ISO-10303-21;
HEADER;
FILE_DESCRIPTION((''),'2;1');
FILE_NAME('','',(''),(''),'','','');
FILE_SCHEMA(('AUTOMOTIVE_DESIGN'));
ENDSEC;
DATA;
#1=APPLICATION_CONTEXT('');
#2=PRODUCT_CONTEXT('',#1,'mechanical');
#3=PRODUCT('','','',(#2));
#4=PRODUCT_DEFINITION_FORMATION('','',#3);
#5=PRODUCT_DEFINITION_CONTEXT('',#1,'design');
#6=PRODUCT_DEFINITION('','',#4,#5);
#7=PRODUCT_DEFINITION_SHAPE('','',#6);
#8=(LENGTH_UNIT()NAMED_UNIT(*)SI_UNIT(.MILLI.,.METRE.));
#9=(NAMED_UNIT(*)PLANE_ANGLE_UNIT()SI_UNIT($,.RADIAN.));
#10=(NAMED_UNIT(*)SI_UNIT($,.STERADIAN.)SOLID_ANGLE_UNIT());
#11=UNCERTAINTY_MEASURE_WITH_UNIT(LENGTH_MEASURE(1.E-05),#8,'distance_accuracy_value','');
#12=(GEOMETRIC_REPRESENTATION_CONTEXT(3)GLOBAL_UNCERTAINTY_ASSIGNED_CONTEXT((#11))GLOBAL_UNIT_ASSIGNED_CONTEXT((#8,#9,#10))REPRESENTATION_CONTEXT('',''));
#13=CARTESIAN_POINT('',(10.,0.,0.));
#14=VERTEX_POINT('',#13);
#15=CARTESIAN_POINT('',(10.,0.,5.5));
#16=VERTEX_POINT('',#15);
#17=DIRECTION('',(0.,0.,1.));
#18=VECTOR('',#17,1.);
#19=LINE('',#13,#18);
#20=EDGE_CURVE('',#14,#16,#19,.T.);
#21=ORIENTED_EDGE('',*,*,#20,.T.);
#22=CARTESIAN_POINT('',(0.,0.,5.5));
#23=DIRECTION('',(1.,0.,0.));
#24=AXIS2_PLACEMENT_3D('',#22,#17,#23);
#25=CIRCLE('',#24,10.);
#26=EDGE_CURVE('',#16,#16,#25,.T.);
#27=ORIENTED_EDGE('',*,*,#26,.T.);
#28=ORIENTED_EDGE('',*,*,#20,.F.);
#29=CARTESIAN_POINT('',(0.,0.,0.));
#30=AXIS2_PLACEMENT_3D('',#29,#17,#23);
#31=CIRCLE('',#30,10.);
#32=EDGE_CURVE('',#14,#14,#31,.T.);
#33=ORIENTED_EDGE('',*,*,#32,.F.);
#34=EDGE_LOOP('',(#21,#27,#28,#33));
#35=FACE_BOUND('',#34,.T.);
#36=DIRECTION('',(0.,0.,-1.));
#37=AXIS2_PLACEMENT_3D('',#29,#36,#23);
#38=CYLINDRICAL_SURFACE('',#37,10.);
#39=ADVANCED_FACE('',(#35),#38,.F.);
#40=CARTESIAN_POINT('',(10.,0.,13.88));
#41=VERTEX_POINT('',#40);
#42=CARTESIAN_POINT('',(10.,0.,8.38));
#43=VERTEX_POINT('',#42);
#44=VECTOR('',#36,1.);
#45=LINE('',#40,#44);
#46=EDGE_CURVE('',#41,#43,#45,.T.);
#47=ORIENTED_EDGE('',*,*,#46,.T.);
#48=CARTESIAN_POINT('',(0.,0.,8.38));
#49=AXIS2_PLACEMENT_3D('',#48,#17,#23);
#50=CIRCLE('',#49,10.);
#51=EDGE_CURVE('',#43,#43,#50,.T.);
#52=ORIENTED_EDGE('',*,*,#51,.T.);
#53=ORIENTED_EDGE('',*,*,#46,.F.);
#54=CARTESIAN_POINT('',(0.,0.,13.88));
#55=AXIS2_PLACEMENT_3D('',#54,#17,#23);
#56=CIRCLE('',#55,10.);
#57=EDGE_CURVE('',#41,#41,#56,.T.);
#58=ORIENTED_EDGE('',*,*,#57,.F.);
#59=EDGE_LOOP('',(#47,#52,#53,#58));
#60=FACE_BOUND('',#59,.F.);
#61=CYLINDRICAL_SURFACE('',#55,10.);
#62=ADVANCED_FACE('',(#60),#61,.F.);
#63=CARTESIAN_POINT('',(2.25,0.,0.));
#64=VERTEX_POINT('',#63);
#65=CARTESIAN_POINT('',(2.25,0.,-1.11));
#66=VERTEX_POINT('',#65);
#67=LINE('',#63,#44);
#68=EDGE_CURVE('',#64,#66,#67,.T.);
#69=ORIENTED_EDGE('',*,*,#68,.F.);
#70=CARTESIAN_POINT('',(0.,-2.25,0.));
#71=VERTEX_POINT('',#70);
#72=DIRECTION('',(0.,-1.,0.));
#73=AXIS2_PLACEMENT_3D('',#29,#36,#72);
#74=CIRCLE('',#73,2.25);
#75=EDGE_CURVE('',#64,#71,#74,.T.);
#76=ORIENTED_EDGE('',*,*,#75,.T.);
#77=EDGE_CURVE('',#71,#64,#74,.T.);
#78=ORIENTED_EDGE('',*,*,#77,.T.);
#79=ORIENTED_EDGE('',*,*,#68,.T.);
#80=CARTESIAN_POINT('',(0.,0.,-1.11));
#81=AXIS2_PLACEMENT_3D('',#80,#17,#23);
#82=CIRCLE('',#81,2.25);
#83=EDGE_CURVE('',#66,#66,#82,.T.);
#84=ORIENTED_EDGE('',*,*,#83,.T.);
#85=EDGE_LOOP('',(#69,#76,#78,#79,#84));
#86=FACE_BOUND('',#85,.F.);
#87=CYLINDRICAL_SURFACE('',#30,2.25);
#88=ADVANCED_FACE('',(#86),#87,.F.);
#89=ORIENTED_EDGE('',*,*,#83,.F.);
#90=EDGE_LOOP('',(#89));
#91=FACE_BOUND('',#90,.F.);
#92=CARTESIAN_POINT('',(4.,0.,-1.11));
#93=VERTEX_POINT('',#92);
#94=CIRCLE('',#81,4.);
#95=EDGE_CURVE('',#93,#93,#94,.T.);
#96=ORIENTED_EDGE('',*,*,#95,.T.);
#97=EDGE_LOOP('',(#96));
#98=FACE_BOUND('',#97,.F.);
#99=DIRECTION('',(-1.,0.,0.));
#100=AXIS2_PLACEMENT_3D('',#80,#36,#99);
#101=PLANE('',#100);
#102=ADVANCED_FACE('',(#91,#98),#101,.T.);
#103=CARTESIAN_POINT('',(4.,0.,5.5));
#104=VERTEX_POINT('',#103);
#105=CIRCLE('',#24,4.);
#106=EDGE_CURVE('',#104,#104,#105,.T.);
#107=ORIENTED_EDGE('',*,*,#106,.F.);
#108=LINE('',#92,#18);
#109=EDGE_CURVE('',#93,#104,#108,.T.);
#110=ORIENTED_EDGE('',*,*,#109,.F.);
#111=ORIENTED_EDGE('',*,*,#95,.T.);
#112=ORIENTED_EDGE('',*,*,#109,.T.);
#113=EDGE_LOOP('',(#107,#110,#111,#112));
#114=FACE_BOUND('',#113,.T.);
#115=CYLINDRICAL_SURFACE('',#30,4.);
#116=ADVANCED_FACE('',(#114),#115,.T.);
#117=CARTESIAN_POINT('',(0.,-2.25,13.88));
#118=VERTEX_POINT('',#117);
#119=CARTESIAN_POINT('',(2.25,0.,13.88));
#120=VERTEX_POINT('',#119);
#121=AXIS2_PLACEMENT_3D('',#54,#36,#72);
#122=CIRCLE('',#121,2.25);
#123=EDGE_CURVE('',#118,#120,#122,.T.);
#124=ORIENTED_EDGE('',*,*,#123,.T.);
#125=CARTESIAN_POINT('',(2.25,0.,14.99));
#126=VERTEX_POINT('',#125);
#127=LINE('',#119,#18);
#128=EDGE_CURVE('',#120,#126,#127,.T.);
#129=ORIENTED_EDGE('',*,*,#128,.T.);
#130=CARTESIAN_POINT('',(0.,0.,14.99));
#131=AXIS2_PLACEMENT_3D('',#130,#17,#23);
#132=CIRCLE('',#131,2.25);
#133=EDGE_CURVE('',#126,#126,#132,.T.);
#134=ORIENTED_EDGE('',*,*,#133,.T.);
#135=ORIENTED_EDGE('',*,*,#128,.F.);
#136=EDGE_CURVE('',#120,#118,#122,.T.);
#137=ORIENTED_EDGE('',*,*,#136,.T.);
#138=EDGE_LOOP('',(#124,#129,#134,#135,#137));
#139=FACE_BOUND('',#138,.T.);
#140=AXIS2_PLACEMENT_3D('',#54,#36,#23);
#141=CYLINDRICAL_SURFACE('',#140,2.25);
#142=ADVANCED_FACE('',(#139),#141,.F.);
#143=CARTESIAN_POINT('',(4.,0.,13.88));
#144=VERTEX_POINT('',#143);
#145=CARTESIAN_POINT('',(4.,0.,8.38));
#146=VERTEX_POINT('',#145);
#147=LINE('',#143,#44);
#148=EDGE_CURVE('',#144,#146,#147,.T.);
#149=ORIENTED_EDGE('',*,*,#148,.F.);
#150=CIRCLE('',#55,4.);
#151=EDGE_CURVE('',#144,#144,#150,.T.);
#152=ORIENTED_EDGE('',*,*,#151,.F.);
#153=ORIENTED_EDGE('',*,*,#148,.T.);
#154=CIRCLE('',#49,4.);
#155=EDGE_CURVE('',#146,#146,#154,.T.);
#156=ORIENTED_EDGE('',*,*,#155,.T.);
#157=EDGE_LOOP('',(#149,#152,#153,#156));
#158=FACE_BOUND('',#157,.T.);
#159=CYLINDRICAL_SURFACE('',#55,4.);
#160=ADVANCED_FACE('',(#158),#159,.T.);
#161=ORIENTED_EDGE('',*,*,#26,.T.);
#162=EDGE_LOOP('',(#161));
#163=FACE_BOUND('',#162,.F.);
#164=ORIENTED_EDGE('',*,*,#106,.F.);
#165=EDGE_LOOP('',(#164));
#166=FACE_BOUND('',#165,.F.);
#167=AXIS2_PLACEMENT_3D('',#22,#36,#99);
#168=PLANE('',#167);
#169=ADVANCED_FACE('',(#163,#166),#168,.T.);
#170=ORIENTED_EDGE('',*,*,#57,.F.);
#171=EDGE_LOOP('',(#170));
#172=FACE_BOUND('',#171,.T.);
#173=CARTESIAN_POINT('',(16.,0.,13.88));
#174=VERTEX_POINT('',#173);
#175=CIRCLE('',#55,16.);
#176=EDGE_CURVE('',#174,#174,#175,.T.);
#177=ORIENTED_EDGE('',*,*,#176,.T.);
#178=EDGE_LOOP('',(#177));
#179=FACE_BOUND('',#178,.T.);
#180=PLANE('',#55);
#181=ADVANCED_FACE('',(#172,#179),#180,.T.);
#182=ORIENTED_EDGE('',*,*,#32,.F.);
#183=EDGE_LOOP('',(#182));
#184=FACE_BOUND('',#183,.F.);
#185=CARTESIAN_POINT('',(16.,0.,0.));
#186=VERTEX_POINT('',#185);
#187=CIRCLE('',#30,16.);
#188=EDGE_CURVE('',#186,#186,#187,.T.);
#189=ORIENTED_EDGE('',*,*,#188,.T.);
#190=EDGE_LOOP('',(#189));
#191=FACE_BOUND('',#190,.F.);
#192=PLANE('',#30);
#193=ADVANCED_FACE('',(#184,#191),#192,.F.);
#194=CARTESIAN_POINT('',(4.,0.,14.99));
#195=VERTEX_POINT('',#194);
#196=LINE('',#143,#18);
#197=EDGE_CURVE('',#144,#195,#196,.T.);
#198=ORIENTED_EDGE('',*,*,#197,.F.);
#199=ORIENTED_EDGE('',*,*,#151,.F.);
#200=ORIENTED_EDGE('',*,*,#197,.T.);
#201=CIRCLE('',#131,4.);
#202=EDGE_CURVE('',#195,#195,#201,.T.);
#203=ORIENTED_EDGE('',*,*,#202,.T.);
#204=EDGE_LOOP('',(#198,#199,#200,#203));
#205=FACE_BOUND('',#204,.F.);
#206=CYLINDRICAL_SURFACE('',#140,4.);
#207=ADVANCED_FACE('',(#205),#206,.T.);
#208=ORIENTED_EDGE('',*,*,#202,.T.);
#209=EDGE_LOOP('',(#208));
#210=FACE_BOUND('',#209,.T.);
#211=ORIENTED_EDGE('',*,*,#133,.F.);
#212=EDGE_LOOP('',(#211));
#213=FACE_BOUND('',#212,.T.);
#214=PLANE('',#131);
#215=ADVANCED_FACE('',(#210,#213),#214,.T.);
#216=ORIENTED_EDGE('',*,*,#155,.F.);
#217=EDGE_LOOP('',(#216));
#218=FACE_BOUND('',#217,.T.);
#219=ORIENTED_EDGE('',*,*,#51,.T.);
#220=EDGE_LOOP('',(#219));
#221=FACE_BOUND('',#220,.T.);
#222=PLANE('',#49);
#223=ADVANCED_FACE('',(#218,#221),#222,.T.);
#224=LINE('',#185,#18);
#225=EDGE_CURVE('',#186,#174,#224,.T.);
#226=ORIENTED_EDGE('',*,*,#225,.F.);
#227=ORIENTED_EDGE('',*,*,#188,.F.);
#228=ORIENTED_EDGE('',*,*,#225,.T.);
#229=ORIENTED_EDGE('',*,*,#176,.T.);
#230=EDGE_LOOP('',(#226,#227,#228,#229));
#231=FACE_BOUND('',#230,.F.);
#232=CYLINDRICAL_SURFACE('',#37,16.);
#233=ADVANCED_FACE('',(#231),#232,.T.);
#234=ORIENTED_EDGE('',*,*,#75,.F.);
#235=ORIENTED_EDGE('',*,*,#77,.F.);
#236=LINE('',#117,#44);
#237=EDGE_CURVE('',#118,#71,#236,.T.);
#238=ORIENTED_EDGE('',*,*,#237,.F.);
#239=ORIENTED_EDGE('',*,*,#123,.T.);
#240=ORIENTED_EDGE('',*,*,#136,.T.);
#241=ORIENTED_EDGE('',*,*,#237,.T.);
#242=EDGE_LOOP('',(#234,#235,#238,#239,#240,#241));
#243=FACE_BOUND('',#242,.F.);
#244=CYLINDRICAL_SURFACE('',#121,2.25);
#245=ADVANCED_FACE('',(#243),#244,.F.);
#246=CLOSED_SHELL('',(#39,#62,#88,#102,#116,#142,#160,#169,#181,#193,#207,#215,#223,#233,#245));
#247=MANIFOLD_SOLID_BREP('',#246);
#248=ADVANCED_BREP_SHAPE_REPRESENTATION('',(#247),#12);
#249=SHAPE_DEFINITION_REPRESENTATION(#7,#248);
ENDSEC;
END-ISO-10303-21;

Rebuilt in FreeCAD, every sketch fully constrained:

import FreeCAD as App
import Part
import Sketcher

V = App.Vector
Q = App.Units.Quantity

doc = App.newDocument("Part")
body = doc.addObject("PartDesign::Body", "Body")

# Sketch on XY plane
sketch1 = body.newObject("Sketcher::SketchObject", "Sketch")
sketch1.AttachmentSupport = (doc.getObject("XY_Plane"), [""])
sketch1.MapMode = "FlatFace"
sketch1.addGeometry(Part.Circle(V(0, 0, 0), V(0, 0, 1), 16), False)
sketch1.addConstraint([
    Sketcher.Constraint("Coincident", 0, 3, -1, 1),
    Sketcher.Constraint("Diameter", 0, Q("32 mm")),
])
pad1 = body.newObject("PartDesign::Pad", "Pad")
pad1.Profile = sketch1
pad1.Length = 13.88

# Sketch on XY plane
sketch2 = body.newObject("Sketcher::SketchObject", "Sketch001")
sketch2.AttachmentSupport = (doc.getObject("XY_Plane"), [""])
sketch2.MapMode = "FlatFace"
sketch2.AttachmentOffset = App.Placement(V(0, 0, 13.88), App.Rotation())
sketch2.addGeometry([
    Part.Circle(V(0, 0, 0), V(0, 0, 1), 10),
    Part.Circle(V(0, 0, 0), V(0, 0, 1), 4),
], False)
sketch2.addConstraint([
    Sketcher.Constraint("Coincident", 0, 3, -1, 1),
    Sketcher.Constraint("Coincident", 1, 3, -1, 1),
    Sketcher.Constraint("Diameter", 0, Q("20 mm")),
    Sketcher.Constraint("Diameter", 1, Q("8 mm")),
])
pocket1 = body.newObject("PartDesign::Pocket", "Pocket")
pocket1.Profile = sketch2
pocket1.Length = 5.5
doc.recompute()

datumplane = body.newObject("PartDesign::Plane", "DatumPlane")
datumplane.AttachmentSupport = (doc.getObject("XY_Plane"), [""])
datumplane.MapMode = "FlatFace"
datumplane.AttachmentOffset = App.Placement(V(0, 0, 6.94), App.Rotation())
mirrored = body.newObject("PartDesign::Mirrored", "Mirrored")
mirrored.Originals = [pocket1]
mirrored.MirrorPlane = (datumplane, [""])
body.Tip = mirrored

# Sketch on XY plane
sketch3 = body.newObject("Sketcher::SketchObject", "Sketch002")
sketch3.AttachmentSupport = (doc.getObject("XY_Plane"), [""])
sketch3.MapMode = "FlatFace"
sketch3.AttachmentOffset = App.Placement(V(0, 0, 13.88), App.Rotation())
sketch3.addGeometry(Part.Circle(V(0, 0, 0), V(0, 0, 1), 2.2), False)
sketch3.addConstraint([
    Sketcher.Constraint("Coincident", 0, 3, -1, 1),
    Sketcher.Constraint("Diameter", 0, Q("4.5 mm")),
])
doc.recompute()
hole = body.newObject("PartDesign::Hole", "Hole")
hole.Profile = sketch3
hole.ThreadType = "None"
hole.Diameter = 4.5
hole.DepthType = "Dimension"
hole.Depth = 13.88
hole.DrillPoint = "Flat"

# Sketch on XY plane
sketch4 = body.newObject("Sketcher::SketchObject", "Sketch003")
sketch4.AttachmentSupport = (doc.getObject("XY_Plane"), [""])
sketch4.MapMode = "FlatFace"
sketch4.AttachmentOffset = App.Placement(V(0, 0, 13.88), App.Rotation())
sketch4.addGeometry([
    Part.Circle(V(0, 0, 0), V(0, 0, 1), 4),
    Part.Circle(V(0, 0, 0), V(0, 0, 1), 2.2),
], False)
sketch4.addConstraint([
    Sketcher.Constraint("Coincident", 0, 3, -1, 1),
    Sketcher.Constraint("Coincident", 1, 3, -1, 1),
    Sketcher.Constraint("Diameter", 0, Q("8 mm")),
    Sketcher.Constraint("Diameter", 1, Q("4.5 mm")),
])
pad2 = body.newObject("PartDesign::Pad", "Pad001")
pad2.Profile = sketch4
pad2.Length = 1.11
doc.recompute()

datumplane2 = body.newObject("PartDesign::Plane", "DatumPlane001")
datumplane2.AttachmentSupport = (doc.getObject("XY_Plane"), [""])
datumplane2.MapMode = "FlatFace"
datumplane2.AttachmentOffset = App.Placement(V(0, 0, 6.94), App.Rotation())
mirrored2 = body.newObject("PartDesign::Mirrored", "Mirrored001")
mirrored2.Originals = [pad2]
mirrored2.MirrorPlane = (datumplane2, [""])
body.Tip = mirrored2

doc.recompute()
